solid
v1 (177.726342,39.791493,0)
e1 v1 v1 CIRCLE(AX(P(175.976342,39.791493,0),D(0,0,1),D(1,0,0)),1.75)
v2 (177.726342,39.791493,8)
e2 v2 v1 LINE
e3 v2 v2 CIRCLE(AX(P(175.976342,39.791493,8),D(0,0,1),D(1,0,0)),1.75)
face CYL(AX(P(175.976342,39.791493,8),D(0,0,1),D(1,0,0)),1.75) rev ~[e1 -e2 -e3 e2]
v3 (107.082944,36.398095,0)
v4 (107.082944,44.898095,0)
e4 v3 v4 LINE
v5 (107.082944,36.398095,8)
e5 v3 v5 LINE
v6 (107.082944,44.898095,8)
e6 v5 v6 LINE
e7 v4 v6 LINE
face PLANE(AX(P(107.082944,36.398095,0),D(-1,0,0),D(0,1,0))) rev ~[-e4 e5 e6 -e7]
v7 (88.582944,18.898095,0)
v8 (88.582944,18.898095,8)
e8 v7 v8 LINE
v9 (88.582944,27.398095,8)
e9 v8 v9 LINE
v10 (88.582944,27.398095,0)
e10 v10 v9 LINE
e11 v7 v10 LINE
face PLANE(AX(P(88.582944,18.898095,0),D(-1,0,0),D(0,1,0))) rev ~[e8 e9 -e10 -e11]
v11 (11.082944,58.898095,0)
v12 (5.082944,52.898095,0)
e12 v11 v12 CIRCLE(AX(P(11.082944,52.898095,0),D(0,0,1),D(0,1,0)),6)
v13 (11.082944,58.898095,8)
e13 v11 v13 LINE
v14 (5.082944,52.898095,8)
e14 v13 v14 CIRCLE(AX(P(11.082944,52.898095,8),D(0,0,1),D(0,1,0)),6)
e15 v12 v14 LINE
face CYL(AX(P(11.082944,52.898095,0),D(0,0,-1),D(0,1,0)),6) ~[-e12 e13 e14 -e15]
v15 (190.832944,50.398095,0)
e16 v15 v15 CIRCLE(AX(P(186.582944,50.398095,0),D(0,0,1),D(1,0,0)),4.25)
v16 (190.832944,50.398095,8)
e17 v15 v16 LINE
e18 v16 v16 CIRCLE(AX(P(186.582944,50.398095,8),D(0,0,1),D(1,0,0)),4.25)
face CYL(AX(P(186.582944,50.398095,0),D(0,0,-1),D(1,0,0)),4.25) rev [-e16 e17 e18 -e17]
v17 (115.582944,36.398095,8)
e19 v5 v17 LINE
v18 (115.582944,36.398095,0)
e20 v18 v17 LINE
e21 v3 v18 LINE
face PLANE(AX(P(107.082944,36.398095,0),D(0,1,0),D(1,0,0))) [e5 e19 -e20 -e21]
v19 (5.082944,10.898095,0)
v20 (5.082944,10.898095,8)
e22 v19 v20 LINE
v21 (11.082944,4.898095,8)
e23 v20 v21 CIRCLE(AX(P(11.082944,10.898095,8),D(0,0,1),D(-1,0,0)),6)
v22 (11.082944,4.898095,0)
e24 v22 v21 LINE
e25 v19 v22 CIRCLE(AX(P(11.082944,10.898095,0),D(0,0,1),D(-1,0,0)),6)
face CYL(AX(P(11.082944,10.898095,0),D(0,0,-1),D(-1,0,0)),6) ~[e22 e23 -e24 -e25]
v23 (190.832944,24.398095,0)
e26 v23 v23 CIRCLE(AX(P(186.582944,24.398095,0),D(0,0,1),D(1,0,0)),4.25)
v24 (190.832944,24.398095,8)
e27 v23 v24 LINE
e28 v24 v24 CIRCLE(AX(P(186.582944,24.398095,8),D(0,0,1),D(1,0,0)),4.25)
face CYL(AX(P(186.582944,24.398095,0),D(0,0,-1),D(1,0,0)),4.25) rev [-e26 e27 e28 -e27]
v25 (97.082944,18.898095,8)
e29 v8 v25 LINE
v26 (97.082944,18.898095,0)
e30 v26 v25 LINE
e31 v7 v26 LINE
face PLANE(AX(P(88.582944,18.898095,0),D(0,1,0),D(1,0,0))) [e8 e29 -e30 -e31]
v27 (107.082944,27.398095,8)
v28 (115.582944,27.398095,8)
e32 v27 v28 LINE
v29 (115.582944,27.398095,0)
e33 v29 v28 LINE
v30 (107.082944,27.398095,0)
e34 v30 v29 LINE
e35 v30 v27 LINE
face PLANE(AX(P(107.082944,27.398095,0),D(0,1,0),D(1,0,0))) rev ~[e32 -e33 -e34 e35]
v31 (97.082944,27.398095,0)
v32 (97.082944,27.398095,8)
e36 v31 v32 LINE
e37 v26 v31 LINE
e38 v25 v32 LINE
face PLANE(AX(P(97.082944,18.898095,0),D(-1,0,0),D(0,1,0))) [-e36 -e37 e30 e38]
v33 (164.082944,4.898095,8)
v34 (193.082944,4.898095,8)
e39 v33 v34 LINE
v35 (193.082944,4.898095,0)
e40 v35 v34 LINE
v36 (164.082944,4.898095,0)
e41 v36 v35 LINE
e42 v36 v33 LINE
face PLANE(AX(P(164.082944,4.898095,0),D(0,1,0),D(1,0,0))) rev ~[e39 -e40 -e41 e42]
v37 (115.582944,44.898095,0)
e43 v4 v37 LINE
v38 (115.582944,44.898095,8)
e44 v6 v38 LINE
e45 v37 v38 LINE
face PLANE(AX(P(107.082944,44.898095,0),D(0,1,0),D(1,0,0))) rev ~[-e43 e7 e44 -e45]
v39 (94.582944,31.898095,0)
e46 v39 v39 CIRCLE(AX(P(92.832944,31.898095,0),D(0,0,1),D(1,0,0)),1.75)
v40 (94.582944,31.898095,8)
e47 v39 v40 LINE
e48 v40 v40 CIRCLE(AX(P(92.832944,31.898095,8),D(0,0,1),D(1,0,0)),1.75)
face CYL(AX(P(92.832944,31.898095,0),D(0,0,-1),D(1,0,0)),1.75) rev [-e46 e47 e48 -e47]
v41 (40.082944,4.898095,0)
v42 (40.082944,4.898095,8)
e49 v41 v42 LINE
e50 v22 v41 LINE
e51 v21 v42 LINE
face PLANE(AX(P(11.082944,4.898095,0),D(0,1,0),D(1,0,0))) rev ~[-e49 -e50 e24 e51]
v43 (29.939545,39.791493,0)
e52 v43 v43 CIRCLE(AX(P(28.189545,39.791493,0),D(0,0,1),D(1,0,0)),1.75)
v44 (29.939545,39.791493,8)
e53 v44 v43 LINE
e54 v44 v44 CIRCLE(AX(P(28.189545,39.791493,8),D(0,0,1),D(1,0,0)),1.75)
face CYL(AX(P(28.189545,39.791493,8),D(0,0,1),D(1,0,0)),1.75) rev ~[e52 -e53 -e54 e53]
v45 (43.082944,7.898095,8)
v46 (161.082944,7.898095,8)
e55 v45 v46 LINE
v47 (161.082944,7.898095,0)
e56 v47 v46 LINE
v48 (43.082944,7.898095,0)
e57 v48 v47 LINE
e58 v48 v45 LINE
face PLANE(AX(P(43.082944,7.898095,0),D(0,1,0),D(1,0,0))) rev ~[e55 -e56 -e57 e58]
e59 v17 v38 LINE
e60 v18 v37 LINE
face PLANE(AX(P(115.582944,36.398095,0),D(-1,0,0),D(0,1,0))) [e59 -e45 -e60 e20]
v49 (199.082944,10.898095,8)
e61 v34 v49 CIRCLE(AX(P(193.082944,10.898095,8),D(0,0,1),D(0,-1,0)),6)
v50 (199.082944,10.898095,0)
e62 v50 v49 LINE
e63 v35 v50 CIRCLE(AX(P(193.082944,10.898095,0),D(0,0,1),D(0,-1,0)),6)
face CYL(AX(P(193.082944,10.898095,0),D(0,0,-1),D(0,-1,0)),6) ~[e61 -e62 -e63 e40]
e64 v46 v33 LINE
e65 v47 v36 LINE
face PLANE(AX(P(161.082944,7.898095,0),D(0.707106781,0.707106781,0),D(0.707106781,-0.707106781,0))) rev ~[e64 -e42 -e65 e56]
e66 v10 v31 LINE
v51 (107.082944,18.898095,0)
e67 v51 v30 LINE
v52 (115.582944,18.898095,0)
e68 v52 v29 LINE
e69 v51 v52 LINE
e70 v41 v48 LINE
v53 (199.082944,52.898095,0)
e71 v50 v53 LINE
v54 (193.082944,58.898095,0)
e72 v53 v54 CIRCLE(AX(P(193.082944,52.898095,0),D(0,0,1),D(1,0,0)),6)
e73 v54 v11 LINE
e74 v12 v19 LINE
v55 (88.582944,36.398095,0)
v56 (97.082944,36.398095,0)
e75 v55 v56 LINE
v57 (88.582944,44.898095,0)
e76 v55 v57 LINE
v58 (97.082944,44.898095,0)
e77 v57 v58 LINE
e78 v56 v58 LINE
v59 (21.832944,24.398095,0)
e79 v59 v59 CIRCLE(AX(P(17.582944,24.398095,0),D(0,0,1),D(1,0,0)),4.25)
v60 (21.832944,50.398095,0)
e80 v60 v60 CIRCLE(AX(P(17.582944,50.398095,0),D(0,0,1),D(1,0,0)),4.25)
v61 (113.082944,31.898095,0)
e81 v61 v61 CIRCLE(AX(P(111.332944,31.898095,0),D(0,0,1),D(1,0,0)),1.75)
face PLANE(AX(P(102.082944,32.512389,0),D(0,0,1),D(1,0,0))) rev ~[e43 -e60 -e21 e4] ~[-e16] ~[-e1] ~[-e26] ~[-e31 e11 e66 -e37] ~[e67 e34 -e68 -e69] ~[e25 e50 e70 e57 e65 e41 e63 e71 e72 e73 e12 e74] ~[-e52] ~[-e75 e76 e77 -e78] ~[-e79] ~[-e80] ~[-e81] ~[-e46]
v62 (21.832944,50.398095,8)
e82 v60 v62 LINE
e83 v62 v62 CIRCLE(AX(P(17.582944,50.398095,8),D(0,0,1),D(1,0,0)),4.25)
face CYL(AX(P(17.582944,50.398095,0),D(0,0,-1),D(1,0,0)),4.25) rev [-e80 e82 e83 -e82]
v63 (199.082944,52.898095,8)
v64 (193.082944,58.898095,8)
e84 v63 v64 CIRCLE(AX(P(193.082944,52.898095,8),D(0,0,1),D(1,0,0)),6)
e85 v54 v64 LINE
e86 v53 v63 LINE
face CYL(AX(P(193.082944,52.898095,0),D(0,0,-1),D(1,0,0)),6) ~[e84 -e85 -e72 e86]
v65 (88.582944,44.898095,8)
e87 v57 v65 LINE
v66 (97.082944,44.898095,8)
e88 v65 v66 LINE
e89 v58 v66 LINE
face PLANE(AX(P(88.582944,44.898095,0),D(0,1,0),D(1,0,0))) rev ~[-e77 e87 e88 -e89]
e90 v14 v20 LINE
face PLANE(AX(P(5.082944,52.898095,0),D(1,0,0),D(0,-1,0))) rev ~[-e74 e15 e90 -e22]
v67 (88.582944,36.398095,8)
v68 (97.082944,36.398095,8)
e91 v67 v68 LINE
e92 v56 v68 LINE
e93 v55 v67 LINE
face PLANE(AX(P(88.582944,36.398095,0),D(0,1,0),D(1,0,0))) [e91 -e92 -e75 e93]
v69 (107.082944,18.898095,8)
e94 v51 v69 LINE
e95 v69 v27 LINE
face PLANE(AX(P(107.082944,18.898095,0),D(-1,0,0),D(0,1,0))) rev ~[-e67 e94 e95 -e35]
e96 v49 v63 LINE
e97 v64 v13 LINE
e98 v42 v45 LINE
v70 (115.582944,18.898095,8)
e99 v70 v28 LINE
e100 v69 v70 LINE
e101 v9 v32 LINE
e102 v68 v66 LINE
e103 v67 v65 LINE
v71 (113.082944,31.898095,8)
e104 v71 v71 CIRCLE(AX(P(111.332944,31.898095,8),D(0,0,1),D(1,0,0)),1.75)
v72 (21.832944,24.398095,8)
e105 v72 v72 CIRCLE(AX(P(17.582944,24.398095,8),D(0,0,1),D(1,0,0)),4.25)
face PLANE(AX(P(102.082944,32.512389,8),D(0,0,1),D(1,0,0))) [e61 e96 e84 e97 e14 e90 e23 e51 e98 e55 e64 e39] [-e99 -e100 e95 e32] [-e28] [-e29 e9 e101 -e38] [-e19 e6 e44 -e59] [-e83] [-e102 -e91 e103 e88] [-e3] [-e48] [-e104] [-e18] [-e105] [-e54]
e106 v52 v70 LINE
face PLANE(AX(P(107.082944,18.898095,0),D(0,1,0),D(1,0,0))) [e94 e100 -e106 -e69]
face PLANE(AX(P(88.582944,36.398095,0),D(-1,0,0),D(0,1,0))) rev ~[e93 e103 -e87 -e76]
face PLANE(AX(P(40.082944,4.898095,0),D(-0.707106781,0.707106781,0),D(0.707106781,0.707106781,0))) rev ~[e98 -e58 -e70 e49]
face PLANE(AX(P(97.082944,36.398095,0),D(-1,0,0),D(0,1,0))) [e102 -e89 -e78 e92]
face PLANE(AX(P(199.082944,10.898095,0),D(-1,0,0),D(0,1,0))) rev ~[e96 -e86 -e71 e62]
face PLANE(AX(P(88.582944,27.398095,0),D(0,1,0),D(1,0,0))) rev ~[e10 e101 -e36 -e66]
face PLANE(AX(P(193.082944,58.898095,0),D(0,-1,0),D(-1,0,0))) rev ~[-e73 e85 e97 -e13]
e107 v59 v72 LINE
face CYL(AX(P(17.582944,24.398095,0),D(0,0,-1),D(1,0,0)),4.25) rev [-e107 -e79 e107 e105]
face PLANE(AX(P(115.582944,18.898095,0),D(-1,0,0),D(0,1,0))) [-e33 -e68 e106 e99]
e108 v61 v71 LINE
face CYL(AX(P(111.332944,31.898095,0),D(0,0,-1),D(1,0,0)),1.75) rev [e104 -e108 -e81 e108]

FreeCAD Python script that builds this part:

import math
import FreeCAD as App
import Part
import Sketcher
from FreeCAD import Vector


def add_polygon(sketch, points):
    """Adds a closed chain of lines whose ends are joined by coincident constraints."""
    first, n = sketch.GeometryCount, len(points)
    for a, b in zip(points, points[1:] + points[:1]):
        sketch.addGeometry(Part.LineSegment(App.Vector(*a, 0), App.Vector(*b, 0)), False)
    for i in range(n):
        sketch.addConstraint(Sketcher.Constraint("Coincident", first + i, 2, first + (i + 1) % n, 1))

doc = App.newDocument("Part")
params = doc.addObject("Spreadsheet::Sheet", "Params")
for row, (alias, value) in enumerate([
    ("sketch1_radius", "6 mm"),
    ("sketch1_diameter", "8.5 mm"),
    ("sketch1_diameter2", "3.5 mm"),
    ("sketch1_width", "29 mm"),
    ("sketch1_width2", "118 mm"),
    ("pad1_length", "8 mm"),
    ("sketch2_diameter", "3.5 mm"),
    ("pocket1_length", "10 mm"),
], start=1):
    params.set(f"A{row}", alias)
    params.set(f"B{row}", "=" + value)
    params.setAlias(f"B{row}", alias)

body = doc.addObject("PartDesign::Body", "Body")

# Sketch on XY plane
sketch1 = doc.addObject("Sketcher::SketchObject", "Sketch")
body.addObject(sketch1)
sketch1.AttachmentSupport = (doc.XY_Plane, [""])
sketch1.MapMode = "FlatFace"
sketch1.addGeometry(Part.LineSegment(Vector(5.1, 52.9, 0), Vector(5.1, 10.9, 0)), False)  # 0
sketch1.addGeometry(Part.ArcOfCircle(Part.Circle(Vector(11.1, 10.9, 0), Vector(0, 0, 1), 6), math.radians(180), math.radians(270)), False)  # 1
sketch1.addGeometry(Part.LineSegment(Vector(11.1, 4.9, 0), Vector(40.1, 4.9, 0)), False)  # 2
sketch1.addGeometry(Part.LineSegment(Vector(40.1, 4.9, 0), Vector(43.1, 7.9, 0)), False)  # 3
sketch1.addGeometry(Part.LineSegment(Vector(43.1, 7.9, 0), Vector(161.1, 7.9, 0)), False)  # 4
sketch1.addGeometry(Part.LineSegment(Vector(161.1, 7.9, 0), Vector(164.1, 4.9, 0)), False)  # 5
sketch1.addGeometry(Part.LineSegment(Vector(164.1, 4.9, 0), Vector(193.1, 4.9, 0)), False)  # 6
sketch1.addGeometry(Part.ArcOfCircle(Part.Circle(Vector(193.1, 10.9, 0), Vector(0, 0, 1), 6), math.radians(-90), math.radians(0)), False)  # 7
sketch1.addGeometry(Part.LineSegment(Vector(199.1, 10.9, 0), Vector(199.1, 52.9, 0)), False)  # 8
sketch1.addGeometry(Part.ArcOfCircle(Part.Circle(Vector(193.1, 52.9, 0), Vector(0, 0, 1), 6), math.radians(0), math.radians(90)), False)  # 9
sketch1.addGeometry(Part.LineSegment(Vector(193.1, 58.9, 0), Vector(11.1, 58.9, 0)), False)  # 10
sketch1.addGeometry(Part.ArcOfCircle(Part.Circle(Vector(11.1, 52.9, 0), Vector(0, 0, 1), 6), math.radians(90), math.radians(180)), False)  # 11
sketch1.addGeometry(Part.Circle(Vector(17.6, 24.4, 0), Vector(0, 0, 1), 4.2), False)  # 12
add_polygon(sketch1, [(97.1, 18.9), (88.6, 18.9), (88.6, 27.4), (97.1, 27.4)])  # lines 13-16
sketch1.addGeometry(Part.Circle(Vector(92.8, 31.9, 0), Vector(0, 0, 1), 1.8), False)  # 17
add_polygon(sketch1, [(115.6, 18.9), (107.1, 18.9), (107.1, 27.4), (115.6, 27.4)])  # lines 18-21
sketch1.addGeometry(Part.Circle(Vector(186.6, 24.4, 0), Vector(0, 0, 1), 4.2), False)  # 22
sketch1.addGeometry(Part.Circle(Vector(111.3, 31.9, 0), Vector(0, 0, 1), 1.8), False)  # 23
add_polygon(sketch1, [(97.1, 36.4), (88.6, 36.4), (88.6, 44.9), (97.1, 44.9)])  # lines 24-27
sketch1.addGeometry(Part.Circle(Vector(17.6, 50.4, 0), Vector(0, 0, 1), 4.2), False)  # 28
add_polygon(sketch1, [(115.6, 36.4), (107.1, 36.4), (107.1, 44.9), (115.6, 44.9)])  # lines 29-32
sketch1.addGeometry(Part.Circle(Vector(186.6, 50.4, 0), Vector(0, 0, 1), 4.2), False)  # 33
sketch1.addConstraint([
    Sketcher.Constraint("Tangent", 0, 2, 1, 1),
    Sketcher.Constraint("Tangent", 1, 2, 2, 1),
    Sketcher.Constraint("Coincident", 2, 2, 3, 1),
    Sketcher.Constraint("Coincident", 3, 2, 4, 1),
    Sketcher.Constraint("Coincident", 4, 2, 5, 1),
    Sketcher.Constraint("Coincident", 5, 2, 6, 1),
    Sketcher.Constraint("Tangent", 6, 2, 7, 1),
    Sketcher.Constraint("Tangent", 7, 2, 8, 1),
    Sketcher.Constraint("Tangent", 8, 2, 9, 1),
    Sketcher.Constraint("Tangent", 9, 2, 10, 1),
    Sketcher.Constraint("Tangent", 10, 2, 11, 1),
    Sketcher.Constraint("Tangent", 11, 2, 0, 1),
    Sketcher.Constraint("Vertical", 0),
    Sketcher.Constraint("Horizontal", 2),
    Sketcher.Constraint("Horizontal", 4),
    Sketcher.Constraint("Horizontal", 6),
    Sketcher.Constraint("Vertical", 8),
    Sketcher.Constraint("Horizontal", 10),
    Sketcher.Constraint("Horizontal", 13),
    Sketcher.Constraint("Vertical", 14),
    Sketcher.Constraint("Horizontal", 15),
    Sketcher.Constraint("Vertical", 16),
    Sketcher.Constraint("Horizontal", 18),
    Sketcher.Constraint("Vertical", 19),
    Sketcher.Constraint("Horizontal", 20),
    Sketcher.Constraint("Vertical", 21),
    Sketcher.Constraint("Horizontal", 24),
    Sketcher.Constraint("Vertical", 25),
    Sketcher.Constraint("Horizontal", 26),
    Sketcher.Constraint("Vertical", 27),
    Sketcher.Constraint("Horizontal", 29),
    Sketcher.Constraint("Vertical", 30),
    Sketcher.Constraint("Horizontal", 31),
    Sketcher.Constraint("Vertical", 32),
    Sketcher.Constraint("Equal", 1, 7),
    Sketcher.Constraint("Equal", 7, 9),
    Sketcher.Constraint("Equal", 9, 11),
    Sketcher.Constraint("Equal", 12, 22),
    Sketcher.Constraint("Equal", 17, 23),
    Sketcher.Constraint("Equal", 22, 28),
    Sketcher.Constraint("Equal", 28, 33),
    Sketcher.Constraint("Perpendicular", 3, 5),
    Sketcher.Constraint("Horizontal", 1, 3, 7, 3),
    Sketcher.Constraint("Horizontal", 12, 3, 22, 3),
    Sketcher.Constraint("Horizontal", 17, 3, 23, 3),
    Sketcher.Constraint("Horizontal", 28, 3, 33, 3),
    Sketcher.Constraint("Horizontal", 16, 2, 18, 2),
    Sketcher.Constraint("Horizontal", 15, 2, 19, 2),
    Sketcher.Constraint("Horizontal", 27, 2, 29, 2),
    Sketcher.Constraint("Horizontal", 26, 2, 30, 2),
    Sketcher.Constraint("Vertical", 12, 3, 28, 3),
    Sketcher.Constraint("Vertical", 22, 3, 33, 3),
    Sketcher.Constraint("Vertical", 14, 2, 24, 2),
    Sketcher.Constraint("Vertical", 16, 2, 26, 2),
    Sketcher.Constraint("Vertical", 19, 2, 29, 2),
    Sketcher.Constraint("Vertical", 21, 2, 31, 2),
    Sketcher.Constraint("Equal", 2, 6),
    Sketcher.Constraint("Equal", 15, 18),
    Sketcher.Constraint("Equal", 31, 14),
    Sketcher.Constraint("Equal", 21, 25),
    Sketcher.Constraint("Equal", 3, 5),
    Sketcher.Constraint("Radius", 1, 6.0),
    Sketcher.Constraint("Diameter", 12, 8.5),
    Sketcher.Constraint("Diameter", 17, 3.5),
    Sketcher.Constraint("DistanceX", 2, 1, 2, 2, 29.0),
    Sketcher.Constraint("DistanceX", 4, 1, 4, 2, 118.0),
    Sketcher.Constraint("DistanceX", 10, 2, 10, 1, 182.0),
    Sketcher.Constraint("DistanceY", 0, 2, 0, 1, 42.0),
    Sketcher.Constraint("DistanceX", 13, 2, 13, 1, 8.5),
    Sketcher.Constraint("DistanceY", 1, 3, 17, 3, 21.0),
    Sketcher.Constraint("DistanceX", 12, 3, 22, 3, 169.0),
    Sketcher.Constraint("DistanceY", 12, 3, 28, 3, 26.0),
    Sketcher.Constraint("DistanceY", 13, 2, 17, 3, 13.0),
    Sketcher.Constraint("DistanceX", 12, 3, 13, 2, 71.0),
    Sketcher.Constraint("DistanceX", 3, 2, 15, 2, 54.0),
    Sketcher.Constraint("DistanceX", 16, 2, 18, 2, 10.0),
    Sketcher.Constraint("DistanceY", 14, 2, 24, 2, 9.0),
    Sketcher.Constraint("DistanceY", 1, 3, 12, 3, 13.5),
    Sketcher.Constraint("DistanceX", 17, 3, 23, 3, 18.5),
    Sketcher.Constraint("DistanceX", 12, 3, 17, 3, 75.25),
    Sketcher.Constraint("DistanceX", -1, 1, 1, 3, 11.082944),
    Sketcher.Constraint("DistanceY", -1, 1, 1, 3, 10.898095),
])
sketch1.setExpression("Constraints[77]", "Params.sketch1_radius")
sketch1.setExpression("Constraints[78]", "Params.sketch1_diameter")
sketch1.setExpression("Constraints[79]", "Params.sketch1_diameter2")
sketch1.setExpression("Constraints[80]", "Params.sketch1_width")
sketch1.setExpression("Constraints[81]", "Params.sketch1_width2")
pad1 = doc.addObject("PartDesign::Pad", "Pad")
body.addObject(pad1)
pad1.Profile = sketch1
pad1.setExpression("Length", "Params.pad1_length")

# Sketch on XY plane
sketch2 = doc.addObject("Sketcher::SketchObject", "Sketch001")
body.addObject(sketch2)
sketch2.AttachmentSupport = (doc.XY_Plane, [""])
sketch2.MapMode = "FlatFace"
sketch2.AttachmentOffset = App.Placement(Vector(0, 0, 8), App.Rotation())
sketch2.addGeometry([
    Part.Circle(Vector(28.2, 39.8, 0), Vector(0, 0, 1), 1.8),
    Part.Circle(Vector(176, 39.8, 0), Vector(0, 0, 1), 1.8),
], False)
sketch2.addConstraint([
    Sketcher.Constraint("Equal", 0, 1),
    Sketcher.Constraint("Horizontal", 0, 3, 1, 3),
    Sketcher.Constraint("Diameter", 0, 3.5),
    Sketcher.Constraint("DistanceX", -1, 1, 1, 3, 175.976342),
    Sketcher.Constraint("DistanceX", -1, 1, 0, 3, 28.189545),
    Sketcher.Constraint("DistanceY", -1, 1, 0, 3, 39.791493),
])
sketch2.setExpression("Constraints[2]", "Params.sketch2_diameter")
pocket1 = doc.addObject("PartDesign::Pocket", "Pocket")
body.addObject(pocket1)
pocket1.Profile = sketch2
pocket1.setExpression("Length", "Params.pocket1_length")

doc.recompute()
